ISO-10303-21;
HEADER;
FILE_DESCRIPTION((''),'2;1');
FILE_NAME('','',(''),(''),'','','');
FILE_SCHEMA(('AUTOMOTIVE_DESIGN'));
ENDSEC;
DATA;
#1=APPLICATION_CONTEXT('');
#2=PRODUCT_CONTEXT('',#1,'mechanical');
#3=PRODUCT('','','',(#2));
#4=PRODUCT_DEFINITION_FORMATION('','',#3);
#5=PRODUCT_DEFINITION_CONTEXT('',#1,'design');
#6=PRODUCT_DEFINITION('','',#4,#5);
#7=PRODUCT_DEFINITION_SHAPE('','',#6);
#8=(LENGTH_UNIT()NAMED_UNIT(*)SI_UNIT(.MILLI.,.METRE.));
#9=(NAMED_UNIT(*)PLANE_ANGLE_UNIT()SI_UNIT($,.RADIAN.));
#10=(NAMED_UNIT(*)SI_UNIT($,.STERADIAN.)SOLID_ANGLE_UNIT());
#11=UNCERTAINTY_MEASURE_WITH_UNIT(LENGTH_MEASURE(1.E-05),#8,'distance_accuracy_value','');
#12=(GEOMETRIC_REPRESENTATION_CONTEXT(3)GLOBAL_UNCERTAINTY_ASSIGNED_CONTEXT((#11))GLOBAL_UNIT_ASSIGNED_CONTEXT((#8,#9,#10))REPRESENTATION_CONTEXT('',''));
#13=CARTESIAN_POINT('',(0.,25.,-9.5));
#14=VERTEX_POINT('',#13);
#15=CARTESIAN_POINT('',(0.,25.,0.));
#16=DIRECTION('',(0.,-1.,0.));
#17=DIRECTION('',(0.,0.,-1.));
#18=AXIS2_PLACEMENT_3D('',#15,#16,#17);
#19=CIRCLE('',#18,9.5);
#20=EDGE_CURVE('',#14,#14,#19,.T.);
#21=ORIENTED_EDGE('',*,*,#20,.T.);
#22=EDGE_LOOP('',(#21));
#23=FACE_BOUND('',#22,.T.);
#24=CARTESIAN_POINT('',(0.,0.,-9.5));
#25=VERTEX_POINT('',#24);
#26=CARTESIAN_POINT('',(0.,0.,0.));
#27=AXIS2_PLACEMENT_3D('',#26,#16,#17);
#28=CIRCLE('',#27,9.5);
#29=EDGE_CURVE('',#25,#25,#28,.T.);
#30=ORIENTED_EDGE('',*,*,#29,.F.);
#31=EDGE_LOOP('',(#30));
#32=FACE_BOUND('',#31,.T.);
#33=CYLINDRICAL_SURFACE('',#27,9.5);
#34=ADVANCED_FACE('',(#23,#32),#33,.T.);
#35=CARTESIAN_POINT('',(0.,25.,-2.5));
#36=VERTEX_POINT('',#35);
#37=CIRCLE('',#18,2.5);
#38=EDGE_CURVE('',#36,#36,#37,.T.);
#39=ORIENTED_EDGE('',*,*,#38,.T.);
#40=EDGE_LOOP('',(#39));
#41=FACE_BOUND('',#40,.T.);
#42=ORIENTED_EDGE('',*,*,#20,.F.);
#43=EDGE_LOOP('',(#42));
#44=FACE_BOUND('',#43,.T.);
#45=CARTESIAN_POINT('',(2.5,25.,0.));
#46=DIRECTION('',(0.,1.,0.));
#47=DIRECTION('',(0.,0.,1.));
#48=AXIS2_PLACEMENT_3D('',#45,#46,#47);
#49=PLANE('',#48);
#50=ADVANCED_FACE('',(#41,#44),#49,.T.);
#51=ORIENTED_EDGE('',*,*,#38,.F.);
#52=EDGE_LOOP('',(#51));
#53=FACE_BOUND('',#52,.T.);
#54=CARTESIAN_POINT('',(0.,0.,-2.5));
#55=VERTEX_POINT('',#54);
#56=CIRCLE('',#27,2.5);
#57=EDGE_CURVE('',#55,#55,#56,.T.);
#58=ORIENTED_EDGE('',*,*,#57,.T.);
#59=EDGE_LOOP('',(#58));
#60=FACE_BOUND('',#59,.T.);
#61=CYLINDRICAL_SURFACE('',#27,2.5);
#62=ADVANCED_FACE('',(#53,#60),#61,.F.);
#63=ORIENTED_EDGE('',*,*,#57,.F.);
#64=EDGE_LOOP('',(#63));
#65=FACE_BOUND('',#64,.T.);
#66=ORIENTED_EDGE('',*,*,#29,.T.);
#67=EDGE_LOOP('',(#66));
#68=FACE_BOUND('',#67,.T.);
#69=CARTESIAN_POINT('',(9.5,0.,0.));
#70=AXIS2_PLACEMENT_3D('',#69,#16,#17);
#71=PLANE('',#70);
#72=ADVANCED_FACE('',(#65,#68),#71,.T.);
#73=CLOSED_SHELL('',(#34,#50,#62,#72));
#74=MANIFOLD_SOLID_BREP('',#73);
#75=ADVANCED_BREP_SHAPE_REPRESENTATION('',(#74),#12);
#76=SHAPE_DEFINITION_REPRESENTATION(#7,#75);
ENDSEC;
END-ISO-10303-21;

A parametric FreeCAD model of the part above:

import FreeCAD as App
import Part
import Sketcher

V = App.Vector

doc = App.newDocument("Part")
body = doc.addObject("PartDesign::Body", "Body")

# Sketch on XY plane
sketch1 = doc.addObject("Sketcher::SketchObject", "Sketch")
body.addObject(sketch1)
sketch1.AttachmentSupport = (doc.XY_Plane, [""])
sketch1.MapMode = "FlatFace"
sketch1.addGeometry(Part.LineSegment(V(2, 25, 0), V(2, 0, 0)), False)
sketch1.addGeometry(Part.LineSegment(V(2, 0, 0), V(10, 0, 0)), False)
sketch1.addGeometry(Part.LineSegment(V(10, 0, 0), V(10, 25, 0)), False)
sketch1.addGeometry(Part.LineSegment(V(10, 25, 0), V(2, 25, 0)), False)
sketch1.addConstraint(Sketcher.Constraint("Coincident", 0, 2, 1, 1))
sketch1.addConstraint(Sketcher.Constraint("Coincident", 1, 2, 2, 1))
sketch1.addConstraint(Sketcher.Constraint("Coincident", 2, 2, 3, 1))
sketch1.addConstraint(Sketcher.Constraint("Coincident", 3, 2, 0, 1))
sketch1.addConstraint(Sketcher.Constraint("Vertical", 0))
sketch1.addConstraint(Sketcher.Constraint("Horizontal", 1))
sketch1.addConstraint(Sketcher.Constraint("Vertical", 2))
sketch1.addConstraint(Sketcher.Constraint("Horizontal", 3))
sketch1.addConstraint(Sketcher.Constraint("PointOnObject", 0, 2, -1))
sketch1.addConstraint(Sketcher.Constraint("DistanceX", 1, 1, 1, 2, 7.0))
sketch1.addConstraint(Sketcher.Constraint("DistanceY", 0, 2, 0, 1, 25.0))
sketch1.addConstraint(Sketcher.Constraint("DistanceX", -1, 1, 0, 2, 2.5))
revolution = doc.addObject("PartDesign::Revolution", "Revolution")
body.addObject(revolution)
revolution.Profile = sketch1
revolution.ReferenceAxis = (sketch1, ["V_Axis"])
revolution.Angle = 360

doc.recompute()
